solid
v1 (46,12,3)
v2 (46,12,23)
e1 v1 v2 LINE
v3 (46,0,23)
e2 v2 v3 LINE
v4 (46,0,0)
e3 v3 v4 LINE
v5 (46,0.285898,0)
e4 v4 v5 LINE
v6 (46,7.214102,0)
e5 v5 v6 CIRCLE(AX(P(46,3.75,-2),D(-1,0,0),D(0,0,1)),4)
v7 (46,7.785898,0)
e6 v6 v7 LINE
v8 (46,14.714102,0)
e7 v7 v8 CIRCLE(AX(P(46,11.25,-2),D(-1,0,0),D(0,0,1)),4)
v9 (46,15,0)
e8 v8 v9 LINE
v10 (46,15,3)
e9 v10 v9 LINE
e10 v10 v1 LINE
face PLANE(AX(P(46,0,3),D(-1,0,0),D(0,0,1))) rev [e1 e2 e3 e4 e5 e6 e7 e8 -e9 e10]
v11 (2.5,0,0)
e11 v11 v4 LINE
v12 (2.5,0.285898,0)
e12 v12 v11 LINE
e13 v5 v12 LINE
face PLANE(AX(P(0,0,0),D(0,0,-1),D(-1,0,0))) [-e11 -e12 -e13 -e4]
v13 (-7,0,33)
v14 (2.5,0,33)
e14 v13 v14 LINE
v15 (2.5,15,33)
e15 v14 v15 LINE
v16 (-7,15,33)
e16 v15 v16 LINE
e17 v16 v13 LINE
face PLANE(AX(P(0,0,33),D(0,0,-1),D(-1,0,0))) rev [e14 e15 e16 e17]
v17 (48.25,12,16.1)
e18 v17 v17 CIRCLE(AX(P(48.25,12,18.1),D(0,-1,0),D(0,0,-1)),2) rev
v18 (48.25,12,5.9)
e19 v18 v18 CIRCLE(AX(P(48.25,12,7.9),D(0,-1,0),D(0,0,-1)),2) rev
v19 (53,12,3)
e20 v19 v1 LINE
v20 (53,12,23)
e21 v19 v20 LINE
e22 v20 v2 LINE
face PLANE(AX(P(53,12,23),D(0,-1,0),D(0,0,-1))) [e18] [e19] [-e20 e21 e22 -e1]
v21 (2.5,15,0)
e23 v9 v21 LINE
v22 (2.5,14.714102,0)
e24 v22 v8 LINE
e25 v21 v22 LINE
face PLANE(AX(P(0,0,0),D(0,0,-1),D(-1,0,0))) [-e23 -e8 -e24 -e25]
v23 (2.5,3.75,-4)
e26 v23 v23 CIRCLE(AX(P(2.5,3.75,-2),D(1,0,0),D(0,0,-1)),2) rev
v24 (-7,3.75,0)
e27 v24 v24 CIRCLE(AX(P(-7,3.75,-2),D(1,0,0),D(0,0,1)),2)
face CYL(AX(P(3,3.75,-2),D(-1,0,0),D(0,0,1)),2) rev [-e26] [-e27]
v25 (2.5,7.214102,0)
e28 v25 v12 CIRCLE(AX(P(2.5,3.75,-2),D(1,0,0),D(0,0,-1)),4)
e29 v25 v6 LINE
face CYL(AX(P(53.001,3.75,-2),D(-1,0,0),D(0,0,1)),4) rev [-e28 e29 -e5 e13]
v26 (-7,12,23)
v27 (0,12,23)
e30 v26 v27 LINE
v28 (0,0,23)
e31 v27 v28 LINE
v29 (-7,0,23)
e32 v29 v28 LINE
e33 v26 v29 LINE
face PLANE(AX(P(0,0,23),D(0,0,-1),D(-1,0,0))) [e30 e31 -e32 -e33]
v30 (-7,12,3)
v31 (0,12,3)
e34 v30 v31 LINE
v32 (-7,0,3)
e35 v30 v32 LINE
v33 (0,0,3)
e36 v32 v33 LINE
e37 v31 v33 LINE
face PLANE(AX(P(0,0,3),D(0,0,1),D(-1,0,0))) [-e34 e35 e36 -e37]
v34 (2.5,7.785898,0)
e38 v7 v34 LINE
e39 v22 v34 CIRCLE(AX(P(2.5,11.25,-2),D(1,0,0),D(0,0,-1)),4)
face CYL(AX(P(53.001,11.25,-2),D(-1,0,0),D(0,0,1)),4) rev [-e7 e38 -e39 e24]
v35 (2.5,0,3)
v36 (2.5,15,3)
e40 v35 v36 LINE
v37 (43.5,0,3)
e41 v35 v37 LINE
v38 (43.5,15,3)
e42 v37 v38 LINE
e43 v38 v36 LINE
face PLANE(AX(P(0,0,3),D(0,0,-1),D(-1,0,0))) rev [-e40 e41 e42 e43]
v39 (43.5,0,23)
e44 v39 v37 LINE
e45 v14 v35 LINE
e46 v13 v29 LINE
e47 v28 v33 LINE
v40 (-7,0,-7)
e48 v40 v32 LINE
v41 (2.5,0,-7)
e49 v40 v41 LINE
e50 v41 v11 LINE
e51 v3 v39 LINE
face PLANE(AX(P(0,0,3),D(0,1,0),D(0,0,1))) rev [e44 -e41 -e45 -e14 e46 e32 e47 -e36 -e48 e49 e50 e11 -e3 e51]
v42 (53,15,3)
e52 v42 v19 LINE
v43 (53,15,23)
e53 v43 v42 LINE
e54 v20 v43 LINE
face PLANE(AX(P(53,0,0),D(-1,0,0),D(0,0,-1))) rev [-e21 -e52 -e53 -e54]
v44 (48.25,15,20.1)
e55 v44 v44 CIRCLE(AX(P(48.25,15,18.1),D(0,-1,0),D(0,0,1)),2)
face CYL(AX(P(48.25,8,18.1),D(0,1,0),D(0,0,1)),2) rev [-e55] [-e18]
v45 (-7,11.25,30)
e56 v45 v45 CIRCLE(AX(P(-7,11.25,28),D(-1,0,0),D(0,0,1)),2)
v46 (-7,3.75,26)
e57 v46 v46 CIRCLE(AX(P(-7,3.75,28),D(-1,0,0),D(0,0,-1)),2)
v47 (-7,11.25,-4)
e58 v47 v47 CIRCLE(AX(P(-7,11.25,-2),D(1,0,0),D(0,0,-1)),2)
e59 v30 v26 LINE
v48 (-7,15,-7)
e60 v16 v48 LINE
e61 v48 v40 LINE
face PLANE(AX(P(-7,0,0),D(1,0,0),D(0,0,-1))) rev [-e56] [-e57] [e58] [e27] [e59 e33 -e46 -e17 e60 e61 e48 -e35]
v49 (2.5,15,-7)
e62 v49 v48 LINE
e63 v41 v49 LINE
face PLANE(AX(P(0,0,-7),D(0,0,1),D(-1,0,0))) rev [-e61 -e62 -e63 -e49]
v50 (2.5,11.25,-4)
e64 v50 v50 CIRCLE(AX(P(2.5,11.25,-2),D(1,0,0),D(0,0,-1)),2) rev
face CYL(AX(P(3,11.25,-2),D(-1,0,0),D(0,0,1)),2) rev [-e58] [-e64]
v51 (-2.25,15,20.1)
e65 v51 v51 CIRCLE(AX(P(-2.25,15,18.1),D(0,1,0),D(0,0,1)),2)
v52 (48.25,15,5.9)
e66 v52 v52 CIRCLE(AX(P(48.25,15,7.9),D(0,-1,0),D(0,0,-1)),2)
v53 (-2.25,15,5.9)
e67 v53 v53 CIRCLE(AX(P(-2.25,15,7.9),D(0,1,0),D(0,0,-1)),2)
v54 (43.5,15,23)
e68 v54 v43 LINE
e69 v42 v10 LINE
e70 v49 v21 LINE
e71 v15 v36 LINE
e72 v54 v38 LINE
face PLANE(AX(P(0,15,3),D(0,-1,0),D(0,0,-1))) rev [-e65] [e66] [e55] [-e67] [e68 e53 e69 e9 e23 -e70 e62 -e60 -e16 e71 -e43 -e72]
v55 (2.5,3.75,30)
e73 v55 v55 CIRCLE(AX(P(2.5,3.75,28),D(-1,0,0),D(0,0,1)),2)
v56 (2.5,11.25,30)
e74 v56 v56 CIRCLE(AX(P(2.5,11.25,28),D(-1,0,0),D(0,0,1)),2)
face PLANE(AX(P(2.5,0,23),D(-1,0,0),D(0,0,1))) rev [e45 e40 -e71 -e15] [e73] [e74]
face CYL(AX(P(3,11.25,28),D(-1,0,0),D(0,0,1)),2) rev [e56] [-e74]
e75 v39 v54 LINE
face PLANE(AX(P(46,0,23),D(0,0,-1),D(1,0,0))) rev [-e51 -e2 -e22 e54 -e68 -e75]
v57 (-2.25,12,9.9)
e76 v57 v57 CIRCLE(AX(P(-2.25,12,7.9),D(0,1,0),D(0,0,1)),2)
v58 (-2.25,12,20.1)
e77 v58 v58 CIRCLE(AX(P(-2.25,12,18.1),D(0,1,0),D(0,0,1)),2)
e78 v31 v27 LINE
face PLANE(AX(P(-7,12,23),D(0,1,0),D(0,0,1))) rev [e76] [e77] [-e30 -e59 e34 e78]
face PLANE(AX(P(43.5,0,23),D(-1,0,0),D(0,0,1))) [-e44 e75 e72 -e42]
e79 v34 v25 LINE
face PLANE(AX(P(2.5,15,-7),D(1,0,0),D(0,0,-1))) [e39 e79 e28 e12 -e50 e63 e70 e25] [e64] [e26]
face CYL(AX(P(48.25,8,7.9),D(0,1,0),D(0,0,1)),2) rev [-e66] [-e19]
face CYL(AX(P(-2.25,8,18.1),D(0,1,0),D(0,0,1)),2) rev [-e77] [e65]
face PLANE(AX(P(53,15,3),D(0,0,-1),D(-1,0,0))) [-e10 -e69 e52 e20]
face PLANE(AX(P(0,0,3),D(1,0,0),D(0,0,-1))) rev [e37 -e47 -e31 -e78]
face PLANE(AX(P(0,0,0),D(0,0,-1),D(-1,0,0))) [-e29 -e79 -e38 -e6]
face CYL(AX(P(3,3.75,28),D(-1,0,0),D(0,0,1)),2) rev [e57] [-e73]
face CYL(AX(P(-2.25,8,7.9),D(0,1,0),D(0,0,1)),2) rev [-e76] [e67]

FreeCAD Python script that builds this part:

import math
import FreeCAD as App
import Part
import Sketcher
Q = App.Units.Quantity


def add_polygon(sketch, points):
    """Adds a closed chain of lines whose ends are joined by coincident constraints."""
    first, n = sketch.GeometryCount, len(points)
    for a, b in zip(points, points[1:] + points[:1]):
        sketch.addGeometry(Part.LineSegment(App.Vector(*a, 0), App.Vector(*b, 0)), False)
    for i in range(n):
        sketch.addConstraint(Sketcher.Constraint("Coincident", first + i, 2, first + (i + 1) % n, 1))

doc = App.newDocument("Part")
body = doc.addObject("PartDesign::Body", "Body")

sketch1 = body.newObject("Sketcher::SketchObject", "Sketch")
sketch1.AttachmentSupport = (doc.getObject("XY_Plane"), [""])
sketch1.MapMode = "FlatFace"
add_polygon(sketch1, [(0, 15), (0, 0), (46, 0), (46, 15)])
sketch1.addConstraint(Sketcher.Constraint("Vertical", 0))
sketch1.addConstraint(Sketcher.Constraint("Horizontal", 1))
sketch1.addConstraint(Sketcher.Constraint("Vertical", 2))
sketch1.addConstraint(Sketcher.Constraint("Horizontal", 3))
sketch1.addConstraint(Sketcher.Constraint("Coincident", 0, 2, -1, 1))
sketch1.addConstraint(Sketcher.Constraint("DistanceX", 1, 1, 1, 2, Q("46 mm")))
sketch1.addConstraint(Sketcher.Constraint("DistanceY", 0, 2, 0, 1, Q("15 mm")))
pad1 = body.newObject("PartDesign::Pad", "Pad")
pad1.Profile = sketch1
pad1.Length = 3

sketch2 = body.newObject("Sketcher::SketchObject", "Sketch001")
sketch2.AttachmentSupport = (doc.getObject("XY_Plane"), [""])
sketch2.MapMode = "FlatFace"
sketch2.AttachmentOffset = App.Placement(App.Vector(0, 0, 3), App.Rotation())
add_polygon(sketch2, [(0, 15), (0, 0), (2.5, 0), (2.5, 15)])
sketch2.addConstraint(Sketcher.Constraint("Vertical", 0))
sketch2.addConstraint(Sketcher.Constraint("Horizontal", 1))
sketch2.addConstraint(Sketcher.Constraint("Vertical", 2))
sketch2.addConstraint(Sketcher.Constraint("Horizontal", 3))
sketch2.addConstraint(Sketcher.Constraint("Coincident", 0, 2, -1, 1))
sketch2.addConstraint(Sketcher.Constraint("DistanceY", 0, 2, 0, 1, Q("15 mm")))
sketch2.addConstraint(Sketcher.Constraint("DistanceX", 1, 1, 1, 2, Q("2.5 mm")))
pad2 = body.newObject("PartDesign::Pad", "Pad001")
pad2.Profile = sketch2
pad2.Length = 20

sketch3 = body.newObject("Sketcher::SketchObject", "Sketch002")
sketch3.AttachmentSupport = (doc.getObject("YZ_Plane"), [""])
sketch3.MapMode = "FlatFace"
add_polygon(sketch3, [(15, 3), (12, 3), (12, 23), (15, 23)])
sketch3.addConstraint(Sketcher.Constraint("Horizontal", 0))
sketch3.addConstraint(Sketcher.Constraint("Vertical", 1))
sketch3.addConstraint(Sketcher.Constraint("Horizontal", 2))
sketch3.addConstraint(Sketcher.Constraint("Vertical", 3))
sketch3.addConstraint(Sketcher.Constraint("DistanceX", 0, 2, 0, 1, Q("3 mm")))
sketch3.addConstraint(Sketcher.Constraint("DistanceY", 1, 1, 1, 2, Q("20 mm")))
sketch3.addConstraint(Sketcher.Constraint("DistanceX", -1, 1, 0, 2, Q("12 mm")))
sketch3.addConstraint(Sketcher.Constraint("DistanceY", -1, 1, 0, 2, Q("3 mm")))
pad3 = body.newObject("PartDesign::Pad", "Pad002")
pad3.Profile = sketch3
pad3.Length = 7
pad3.Reversed = True

sketch4 = body.newObject("Sketcher::SketchObject", "Sketch003")
sketch4.AttachmentSupport = (doc.getObject("XZ_Plane"), [""])
sketch4.MapMode = "FlatFace"
sketch4.AttachmentOffset = App.Placement(App.Vector(0, 0, -15), App.Rotation())
sketch4.addGeometry(Part.Circle(App.Vector(-2.2, 18.1, 0), App.Vector(0, 0, 1), 2), False)
sketch4.addGeometry(Part.Circle(App.Vector(-2.2, 7.9, 0), App.Vector(0, 0, 1), 2), False)
sketch4.addConstraint(Sketcher.Constraint("Equal", 0, 1))
sketch4.addConstraint(Sketcher.Constraint("Vertical", 0, 3, 1, 3))
sketch4.addConstraint(Sketcher.Constraint("Diameter", 0, Q("4 mm")))
sketch4.addConstraint(Sketcher.Constraint("DistanceY", -1, 1, 0, 3, Q("18.1 mm")))
sketch4.addConstraint(Sketcher.Constraint("DistanceY", -1, 1, 1, 3, Q("7.9 mm")))
sketch4.addConstraint(Sketcher.Constraint("DistanceX", 0, 3, -1, 1, Q("2.25 mm")))
pocket1 = body.newObject("PartDesign::Pocket", "Pocket")
pocket1.Profile = sketch4
pocket1.Length = 7
pocket1.Reversed = True
doc.recompute()

datumplane = body.newObject("PartDesign::Plane", "DatumPlane")
datumplane.AttachmentSupport = (doc.getObject("YZ_Plane"), [""])
datumplane.MapMode = "FlatFace"
datumplane.AttachmentOffset = App.Placement(App.Vector(0, 0, 23), App.Rotation())
mirrored = body.newObject("PartDesign::Mirrored", "Mirrored")
mirrored.Originals = [pad2, pad3, pocket1]
mirrored.MirrorPlane = (datumplane, [""])
body.Tip = mirrored

sketch5 = body.newObject("Sketcher::SketchObject", "Sketch004")
sketch5.AttachmentSupport = (doc.getObject("XY_Plane"), [""])
sketch5.MapMode = "FlatFace"
sketch5.AttachmentOffset = App.Placement(App.Vector(0, 0, 23), App.Rotation())
add_polygon(sketch5, [(-7, 15), (-7, 0), (2, 0), (2, 15)])
sketch5.addConstraint(Sketcher.Constraint("Vertical", 0))
sketch5.addConstraint(Sketcher.Constraint("Horizontal", 1))
sketch5.addConstraint(Sketcher.Constraint("Vertical", 2))
sketch5.addConstraint(Sketcher.Constraint("Horizontal", 3))
sketch5.addConstraint(Sketcher.Constraint("PointOnObject", 0, 2, -1))
sketch5.addConstraint(Sketcher.Constraint("DistanceY", 0, 2, 0, 1, Q("15 mm")))
sketch5.addConstraint(Sketcher.Constraint("DistanceX", 1, 1, 1, 2, Q("9.5 mm")))
sketch5.addConstraint(Sketcher.Constraint("DistanceX", 0, 2, -1, 1, Q("7 mm")))
pad4 = body.newObject("PartDesign::Pad", "Pad003")
pad4.Profile = sketch5
pad4.Length = 10

sketch6 = body.newObject("Sketcher::SketchObject", "Sketch005")
sketch6.AttachmentSupport = (doc.getObject("YZ_Plane"), [""])
sketch6.MapMode = "FlatFace"
sketch6.AttachmentOffset = App.Placement(App.Vector(0, 0, -7), App.Rotation())
sketch6.addGeometry(Part.Circle(App.Vector(11.2, 28, 0), App.Vector(0, 0, 1), 2), False)
sketch6.addGeometry(Part.Circle(App.Vector(3.8, 28, 0), App.Vector(0, 0, 1), 2), False)
sketch6.addConstraint(Sketcher.Constraint("Equal", 0, 1))
sketch6.addConstraint(Sketcher.Constraint("Horizontal", 0, 3, 1, 3))
sketch6.addConstraint(Sketcher.Constraint("Diameter", 0, Q("4 mm")))
sketch6.addConstraint(Sketcher.Constraint("DistanceY", -1, 1, 0, 3, Q("28 mm")))
sketch6.addConstraint(Sketcher.Constraint("DistanceX", 1, 3, 0, 3, Q("7.5 mm")))
sketch6.addConstraint(Sketcher.Constraint("DistanceX", -1, 1, 0, 3, Q("11.25 mm")))
pocket2 = body.newObject("PartDesign::Pocket", "Pocket001")
pocket2.Profile = sketch6
pocket2.Length = 10
pocket2.Reversed = True
doc.recompute()

datumplane2 = body.newObject("PartDesign::Plane", "DatumPlane001")
datumplane2.AttachmentSupport = (doc.getObject("XY_Plane"), [""])
datumplane2.MapMode = "FlatFace"
datumplane2.AttachmentOffset = App.Placement(App.Vector(0, 0, 13), App.Rotation())
mirrored2 = body.newObject("PartDesign::Mirrored", "Mirrored001")
mirrored2.Originals = [pad4, pocket2]
mirrored2.MirrorPlane = (datumplane2, [""])
body.Tip = mirrored2

sketch7 = body.newObject("Sketcher::SketchObject", "Sketch006")
sketch7.AttachmentSupport = (doc.getObject("YZ_Plane"), [""])
sketch7.MapMode = "FlatFace"
sketch7.AttachmentOffset = App.Placement(App.Vector(0, 0, 2.5), App.Rotation())
sketch7.addGeometry(Part.ArcOfCircle(Part.Circle(App.Vector(3.8, -2, 0), App.Vector(0, 0, 1), 4), math.radians(20), math.radians(340)), False)
sketch7.addGeometry(Part.ArcOfCircle(Part.Circle(App.Vector(11.2, -2, 0), App.Vector(0, 0, 1), 4), math.radians(-160), math.radians(160)), False)
sketch7.addConstraint(Sketcher.Constraint("Coincident", 0, 1, 1, 2))
sketch7.addConstraint(Sketcher.Constraint("Coincident", 1, 1, 0, 2))
sketch7.addConstraint(Sketcher.Constraint("Equal", 0, 1))
sketch7.addConstraint(Sketcher.Constraint("Horizontal", 0, 3, 1, 3))
sketch7.addConstraint(Sketcher.Constraint("Radius", 0, Q("4 mm")))
sketch7.addConstraint(Sketcher.Constraint("DistanceY", 0, 3, -1, 1, Q("2 mm")))
sketch7.addConstraint(Sketcher.Constraint("DistanceX", -1, 1, 0, 1, Q("7.5 mm")))
sketch7.addConstraint(Sketcher.Constraint("DistanceX", 0, 3, 1, 3, Q("7.5 mm")))
pocket3 = body.newObject("PartDesign::Pocket", "Pocket002")
pocket3.Profile = sketch7
pocket3.Length = 43.5
pocket3.Reversed = True

doc.recompute()
